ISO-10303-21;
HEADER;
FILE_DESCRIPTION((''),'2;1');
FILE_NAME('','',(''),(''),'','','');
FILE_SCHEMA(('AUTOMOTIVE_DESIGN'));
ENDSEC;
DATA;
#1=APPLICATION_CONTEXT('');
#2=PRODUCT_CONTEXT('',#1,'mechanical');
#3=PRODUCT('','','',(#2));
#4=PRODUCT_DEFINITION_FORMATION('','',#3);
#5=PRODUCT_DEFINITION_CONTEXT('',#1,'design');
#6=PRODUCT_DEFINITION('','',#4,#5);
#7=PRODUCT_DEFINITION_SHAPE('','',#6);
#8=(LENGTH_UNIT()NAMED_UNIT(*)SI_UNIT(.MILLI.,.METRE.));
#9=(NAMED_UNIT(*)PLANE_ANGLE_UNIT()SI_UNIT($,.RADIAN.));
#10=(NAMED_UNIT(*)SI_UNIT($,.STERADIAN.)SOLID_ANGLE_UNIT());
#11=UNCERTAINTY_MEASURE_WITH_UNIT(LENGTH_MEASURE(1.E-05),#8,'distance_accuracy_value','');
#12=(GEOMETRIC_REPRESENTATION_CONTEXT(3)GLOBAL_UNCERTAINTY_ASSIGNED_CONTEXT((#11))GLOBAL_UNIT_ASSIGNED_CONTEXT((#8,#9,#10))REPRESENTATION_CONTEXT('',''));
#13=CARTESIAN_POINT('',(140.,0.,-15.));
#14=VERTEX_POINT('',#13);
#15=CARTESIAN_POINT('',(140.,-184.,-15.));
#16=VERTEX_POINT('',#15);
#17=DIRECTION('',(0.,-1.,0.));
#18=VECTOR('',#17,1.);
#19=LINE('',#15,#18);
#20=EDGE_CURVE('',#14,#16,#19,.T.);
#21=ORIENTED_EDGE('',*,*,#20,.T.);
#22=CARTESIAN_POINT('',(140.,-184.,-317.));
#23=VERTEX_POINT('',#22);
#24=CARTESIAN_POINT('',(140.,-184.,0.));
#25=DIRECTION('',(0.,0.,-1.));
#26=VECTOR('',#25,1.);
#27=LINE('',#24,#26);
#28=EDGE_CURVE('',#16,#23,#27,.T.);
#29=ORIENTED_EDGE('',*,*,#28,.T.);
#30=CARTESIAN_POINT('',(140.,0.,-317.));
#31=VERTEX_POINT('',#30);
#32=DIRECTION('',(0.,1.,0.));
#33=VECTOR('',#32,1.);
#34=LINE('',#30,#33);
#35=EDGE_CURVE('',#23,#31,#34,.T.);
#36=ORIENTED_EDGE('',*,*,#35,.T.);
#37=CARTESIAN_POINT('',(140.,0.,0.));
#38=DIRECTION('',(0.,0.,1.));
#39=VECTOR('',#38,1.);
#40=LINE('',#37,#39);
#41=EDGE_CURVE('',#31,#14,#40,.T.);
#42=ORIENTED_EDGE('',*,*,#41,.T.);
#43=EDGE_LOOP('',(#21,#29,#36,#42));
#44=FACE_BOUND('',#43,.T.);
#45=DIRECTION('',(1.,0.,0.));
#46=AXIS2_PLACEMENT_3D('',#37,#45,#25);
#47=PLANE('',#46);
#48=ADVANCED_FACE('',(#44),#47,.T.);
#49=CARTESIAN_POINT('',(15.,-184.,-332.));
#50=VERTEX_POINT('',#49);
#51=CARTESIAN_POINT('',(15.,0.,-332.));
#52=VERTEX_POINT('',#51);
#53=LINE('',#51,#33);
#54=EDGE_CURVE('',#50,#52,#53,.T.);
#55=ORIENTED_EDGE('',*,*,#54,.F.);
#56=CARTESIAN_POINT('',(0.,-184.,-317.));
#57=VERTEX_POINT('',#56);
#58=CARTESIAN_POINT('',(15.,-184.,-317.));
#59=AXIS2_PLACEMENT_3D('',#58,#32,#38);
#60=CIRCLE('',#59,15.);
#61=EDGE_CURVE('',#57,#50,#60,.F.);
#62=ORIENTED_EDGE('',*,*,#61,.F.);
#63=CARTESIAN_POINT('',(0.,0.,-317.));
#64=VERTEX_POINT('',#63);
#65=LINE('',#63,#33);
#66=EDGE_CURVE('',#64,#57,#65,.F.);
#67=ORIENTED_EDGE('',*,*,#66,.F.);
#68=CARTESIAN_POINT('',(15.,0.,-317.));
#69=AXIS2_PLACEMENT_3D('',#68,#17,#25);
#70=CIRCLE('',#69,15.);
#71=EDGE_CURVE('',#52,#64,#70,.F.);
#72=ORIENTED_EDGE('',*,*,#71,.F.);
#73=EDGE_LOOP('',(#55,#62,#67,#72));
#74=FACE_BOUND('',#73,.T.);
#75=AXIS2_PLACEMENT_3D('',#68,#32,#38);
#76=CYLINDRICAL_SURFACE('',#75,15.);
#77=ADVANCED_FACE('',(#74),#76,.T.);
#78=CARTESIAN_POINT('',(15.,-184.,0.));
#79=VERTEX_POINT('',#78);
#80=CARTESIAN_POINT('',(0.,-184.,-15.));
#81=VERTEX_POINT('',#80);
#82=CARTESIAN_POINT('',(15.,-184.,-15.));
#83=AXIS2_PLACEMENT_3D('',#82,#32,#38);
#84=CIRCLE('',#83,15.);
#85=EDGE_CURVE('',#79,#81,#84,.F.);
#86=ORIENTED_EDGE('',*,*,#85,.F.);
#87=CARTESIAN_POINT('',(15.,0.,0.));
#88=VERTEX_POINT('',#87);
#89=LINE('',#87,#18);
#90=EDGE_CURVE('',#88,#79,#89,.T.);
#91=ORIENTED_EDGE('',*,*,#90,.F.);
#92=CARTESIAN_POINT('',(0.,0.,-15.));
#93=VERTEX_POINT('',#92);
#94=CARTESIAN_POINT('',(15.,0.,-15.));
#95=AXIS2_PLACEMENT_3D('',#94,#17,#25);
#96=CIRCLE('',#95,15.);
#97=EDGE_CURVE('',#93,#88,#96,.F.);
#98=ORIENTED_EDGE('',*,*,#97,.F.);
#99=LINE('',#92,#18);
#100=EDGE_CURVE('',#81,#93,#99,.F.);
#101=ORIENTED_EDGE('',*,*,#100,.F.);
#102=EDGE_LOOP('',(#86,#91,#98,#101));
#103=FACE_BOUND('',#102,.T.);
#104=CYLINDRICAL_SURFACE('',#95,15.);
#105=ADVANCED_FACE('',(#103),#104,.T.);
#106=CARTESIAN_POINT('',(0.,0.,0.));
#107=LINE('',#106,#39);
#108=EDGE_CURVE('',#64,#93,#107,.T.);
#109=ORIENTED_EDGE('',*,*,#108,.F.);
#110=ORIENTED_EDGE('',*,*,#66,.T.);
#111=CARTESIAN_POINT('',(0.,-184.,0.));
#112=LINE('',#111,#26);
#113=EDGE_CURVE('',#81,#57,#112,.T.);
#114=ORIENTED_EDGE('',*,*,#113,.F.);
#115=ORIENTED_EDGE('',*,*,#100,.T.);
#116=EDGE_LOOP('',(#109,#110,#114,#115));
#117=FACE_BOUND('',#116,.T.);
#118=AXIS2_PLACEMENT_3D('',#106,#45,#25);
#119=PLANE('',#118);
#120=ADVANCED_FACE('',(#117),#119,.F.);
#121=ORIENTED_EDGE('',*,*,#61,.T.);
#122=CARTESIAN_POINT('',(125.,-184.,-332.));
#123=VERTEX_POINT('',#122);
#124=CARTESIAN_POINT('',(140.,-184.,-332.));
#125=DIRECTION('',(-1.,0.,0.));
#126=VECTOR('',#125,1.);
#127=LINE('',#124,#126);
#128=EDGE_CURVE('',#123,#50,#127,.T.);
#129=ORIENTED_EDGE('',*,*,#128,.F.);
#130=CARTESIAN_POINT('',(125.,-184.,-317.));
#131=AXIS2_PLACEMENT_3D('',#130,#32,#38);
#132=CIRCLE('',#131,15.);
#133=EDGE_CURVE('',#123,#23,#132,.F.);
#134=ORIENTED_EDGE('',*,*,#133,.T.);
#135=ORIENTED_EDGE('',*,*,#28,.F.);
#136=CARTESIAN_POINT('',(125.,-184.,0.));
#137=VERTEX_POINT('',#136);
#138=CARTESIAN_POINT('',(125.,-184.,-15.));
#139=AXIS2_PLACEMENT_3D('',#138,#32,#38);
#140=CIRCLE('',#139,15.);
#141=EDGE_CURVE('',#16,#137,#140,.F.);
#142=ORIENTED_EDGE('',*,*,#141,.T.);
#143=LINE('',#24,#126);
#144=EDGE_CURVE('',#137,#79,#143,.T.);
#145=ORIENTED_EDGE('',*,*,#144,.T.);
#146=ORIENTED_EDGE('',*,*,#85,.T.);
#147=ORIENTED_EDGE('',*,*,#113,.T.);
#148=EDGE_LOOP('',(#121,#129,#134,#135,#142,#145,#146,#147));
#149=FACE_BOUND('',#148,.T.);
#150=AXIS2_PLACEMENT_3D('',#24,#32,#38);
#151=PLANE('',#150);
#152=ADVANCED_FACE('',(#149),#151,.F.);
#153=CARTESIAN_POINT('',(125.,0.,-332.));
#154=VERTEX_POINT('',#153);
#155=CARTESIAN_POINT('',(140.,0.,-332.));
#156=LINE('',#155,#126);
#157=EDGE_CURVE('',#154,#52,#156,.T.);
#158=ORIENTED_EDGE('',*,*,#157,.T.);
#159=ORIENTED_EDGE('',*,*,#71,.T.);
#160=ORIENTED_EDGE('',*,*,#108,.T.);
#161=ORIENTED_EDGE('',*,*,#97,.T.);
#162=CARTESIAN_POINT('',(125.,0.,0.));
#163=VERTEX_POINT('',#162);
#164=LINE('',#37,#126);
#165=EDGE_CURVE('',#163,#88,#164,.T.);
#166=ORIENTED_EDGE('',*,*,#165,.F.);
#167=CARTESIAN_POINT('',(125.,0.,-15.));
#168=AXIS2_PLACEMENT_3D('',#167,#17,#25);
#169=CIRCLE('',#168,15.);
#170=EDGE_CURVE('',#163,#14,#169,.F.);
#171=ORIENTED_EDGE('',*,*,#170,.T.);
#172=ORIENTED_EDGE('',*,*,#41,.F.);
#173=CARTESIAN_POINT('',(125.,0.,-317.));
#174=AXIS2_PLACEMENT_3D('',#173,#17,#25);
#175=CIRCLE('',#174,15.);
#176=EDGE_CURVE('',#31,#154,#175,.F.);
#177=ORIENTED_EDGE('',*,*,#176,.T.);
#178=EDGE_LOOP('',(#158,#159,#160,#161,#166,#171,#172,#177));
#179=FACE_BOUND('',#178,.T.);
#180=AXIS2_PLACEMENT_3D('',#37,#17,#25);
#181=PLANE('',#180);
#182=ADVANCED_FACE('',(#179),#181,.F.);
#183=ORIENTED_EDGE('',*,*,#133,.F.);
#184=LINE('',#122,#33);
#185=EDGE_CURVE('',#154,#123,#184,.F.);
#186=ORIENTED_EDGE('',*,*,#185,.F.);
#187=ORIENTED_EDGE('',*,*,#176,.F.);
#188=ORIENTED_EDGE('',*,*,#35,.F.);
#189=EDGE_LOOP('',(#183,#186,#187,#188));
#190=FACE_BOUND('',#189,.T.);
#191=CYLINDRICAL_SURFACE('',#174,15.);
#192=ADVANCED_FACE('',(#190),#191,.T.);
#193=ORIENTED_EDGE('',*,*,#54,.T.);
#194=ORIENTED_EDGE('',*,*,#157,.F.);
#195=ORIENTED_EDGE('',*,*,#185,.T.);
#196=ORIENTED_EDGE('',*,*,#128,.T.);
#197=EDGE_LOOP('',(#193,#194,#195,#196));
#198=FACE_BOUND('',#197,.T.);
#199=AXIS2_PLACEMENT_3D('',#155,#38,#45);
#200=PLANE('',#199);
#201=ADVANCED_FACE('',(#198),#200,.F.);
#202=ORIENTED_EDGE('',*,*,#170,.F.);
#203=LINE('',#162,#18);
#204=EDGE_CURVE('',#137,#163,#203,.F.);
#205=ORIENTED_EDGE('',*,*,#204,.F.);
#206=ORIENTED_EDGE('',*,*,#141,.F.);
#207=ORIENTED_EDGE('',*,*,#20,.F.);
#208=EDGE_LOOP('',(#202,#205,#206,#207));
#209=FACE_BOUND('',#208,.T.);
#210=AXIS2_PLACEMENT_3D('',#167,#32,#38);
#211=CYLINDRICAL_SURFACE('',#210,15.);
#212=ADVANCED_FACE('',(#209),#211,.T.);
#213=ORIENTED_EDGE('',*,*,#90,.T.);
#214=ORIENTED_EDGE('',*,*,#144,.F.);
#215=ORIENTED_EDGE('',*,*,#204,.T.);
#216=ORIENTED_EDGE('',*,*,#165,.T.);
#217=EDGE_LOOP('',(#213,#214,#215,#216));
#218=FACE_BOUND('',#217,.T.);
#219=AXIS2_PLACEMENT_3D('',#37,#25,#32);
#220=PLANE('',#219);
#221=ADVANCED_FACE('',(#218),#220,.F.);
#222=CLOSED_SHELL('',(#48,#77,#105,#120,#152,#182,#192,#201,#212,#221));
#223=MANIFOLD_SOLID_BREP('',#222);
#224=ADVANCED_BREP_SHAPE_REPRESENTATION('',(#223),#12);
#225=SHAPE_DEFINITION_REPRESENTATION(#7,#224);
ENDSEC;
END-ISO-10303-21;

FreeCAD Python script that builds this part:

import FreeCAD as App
import Part
import Sketcher
from FreeCAD import Vector


def edges_at(feature, points):
    """Names of the edges that pass closest to the given points."""
    edges = feature.Shape.Edges
    near = lambda p: min(range(len(edges)), key=lambda i: edges[i].distToShape(Part.Vertex(*p))[0])
    return sorted({f"Edge{near(p) + 1}" for p in points})

doc = App.newDocument("Part")
params = doc.addObject("Spreadsheet::Sheet", "Params")
for row, (alias, value) in enumerate([
    ("sketch1_width", "184 mm"),
    ("sketch1_height", "332 mm"),
    ("pad1_length", "140 mm"),
    ("fillet_radius", "15 mm"),
], start=1):
    params.set(f"A{row}", alias)
    params.set(f"B{row}", "=" + value)
    params.setAlias(f"B{row}", alias)

body = doc.addObject("PartDesign::Body", "Body")

# Sketch on YZ plane
sketch1 = body.newObject("Sketcher::SketchObject", "Sketch")
sketch1.AttachmentSupport = (doc.getObject("YZ_Plane"), [""])
sketch1.MapMode = "FlatFace"
sketch1.addGeometry([
    Part.LineSegment(Vector(0, 0, 0), Vector(-184, 0, 0)),
    Part.LineSegment(Vector(-184, 0, 0), Vector(-184, -332, 0)),
    Part.LineSegment(Vector(-184, -332, 0), Vector(0, -332, 0)),
    Part.LineSegment(Vector(0, -332, 0), Vector(0, 0, 0)),
], False)
sketch1.addConstraint([
    Sketcher.Constraint("Coincident", 0, 2, 1, 1),
    Sketcher.Constraint("Coincident", 1, 2, 2, 1),
    Sketcher.Constraint("Coincident", 2, 2, 3, 1),
    Sketcher.Constraint("Coincident", 3, 2, 0, 1),
    Sketcher.Constraint("Horizontal", 0),
    Sketcher.Constraint("Vertical", 1),
    Sketcher.Constraint("Horizontal", 2),
    Sketcher.Constraint("Vertical", 3),
    Sketcher.Constraint("Coincident", 3, 2, -1, 1),
    Sketcher.Constraint("DistanceX", 0, 2, 0, 1, 184.0),
    Sketcher.Constraint("DistanceY", 1, 2, 1, 1, 332.0),
])
sketch1.setExpression("Constraints[9]", "Params.sketch1_width")
sketch1.setExpression("Constraints[10]", "Params.sketch1_height")
pad1 = body.newObject("PartDesign::Pad", "Pad")
pad1.Profile = sketch1
pad1.setExpression("Length", "Params.pad1_length")
doc.recompute()

fillet = body.newObject("PartDesign::Fillet", "Fillet")
fillet.Base = (pad1, edges_at(pad1, [
    (140, -92, -332),
    (140, -92, 0),
    (0, -92, -332),
    (0, -92, 0),
]))
fillet.setExpression("Radius", "Params.fillet_radius")

doc.recompute()
